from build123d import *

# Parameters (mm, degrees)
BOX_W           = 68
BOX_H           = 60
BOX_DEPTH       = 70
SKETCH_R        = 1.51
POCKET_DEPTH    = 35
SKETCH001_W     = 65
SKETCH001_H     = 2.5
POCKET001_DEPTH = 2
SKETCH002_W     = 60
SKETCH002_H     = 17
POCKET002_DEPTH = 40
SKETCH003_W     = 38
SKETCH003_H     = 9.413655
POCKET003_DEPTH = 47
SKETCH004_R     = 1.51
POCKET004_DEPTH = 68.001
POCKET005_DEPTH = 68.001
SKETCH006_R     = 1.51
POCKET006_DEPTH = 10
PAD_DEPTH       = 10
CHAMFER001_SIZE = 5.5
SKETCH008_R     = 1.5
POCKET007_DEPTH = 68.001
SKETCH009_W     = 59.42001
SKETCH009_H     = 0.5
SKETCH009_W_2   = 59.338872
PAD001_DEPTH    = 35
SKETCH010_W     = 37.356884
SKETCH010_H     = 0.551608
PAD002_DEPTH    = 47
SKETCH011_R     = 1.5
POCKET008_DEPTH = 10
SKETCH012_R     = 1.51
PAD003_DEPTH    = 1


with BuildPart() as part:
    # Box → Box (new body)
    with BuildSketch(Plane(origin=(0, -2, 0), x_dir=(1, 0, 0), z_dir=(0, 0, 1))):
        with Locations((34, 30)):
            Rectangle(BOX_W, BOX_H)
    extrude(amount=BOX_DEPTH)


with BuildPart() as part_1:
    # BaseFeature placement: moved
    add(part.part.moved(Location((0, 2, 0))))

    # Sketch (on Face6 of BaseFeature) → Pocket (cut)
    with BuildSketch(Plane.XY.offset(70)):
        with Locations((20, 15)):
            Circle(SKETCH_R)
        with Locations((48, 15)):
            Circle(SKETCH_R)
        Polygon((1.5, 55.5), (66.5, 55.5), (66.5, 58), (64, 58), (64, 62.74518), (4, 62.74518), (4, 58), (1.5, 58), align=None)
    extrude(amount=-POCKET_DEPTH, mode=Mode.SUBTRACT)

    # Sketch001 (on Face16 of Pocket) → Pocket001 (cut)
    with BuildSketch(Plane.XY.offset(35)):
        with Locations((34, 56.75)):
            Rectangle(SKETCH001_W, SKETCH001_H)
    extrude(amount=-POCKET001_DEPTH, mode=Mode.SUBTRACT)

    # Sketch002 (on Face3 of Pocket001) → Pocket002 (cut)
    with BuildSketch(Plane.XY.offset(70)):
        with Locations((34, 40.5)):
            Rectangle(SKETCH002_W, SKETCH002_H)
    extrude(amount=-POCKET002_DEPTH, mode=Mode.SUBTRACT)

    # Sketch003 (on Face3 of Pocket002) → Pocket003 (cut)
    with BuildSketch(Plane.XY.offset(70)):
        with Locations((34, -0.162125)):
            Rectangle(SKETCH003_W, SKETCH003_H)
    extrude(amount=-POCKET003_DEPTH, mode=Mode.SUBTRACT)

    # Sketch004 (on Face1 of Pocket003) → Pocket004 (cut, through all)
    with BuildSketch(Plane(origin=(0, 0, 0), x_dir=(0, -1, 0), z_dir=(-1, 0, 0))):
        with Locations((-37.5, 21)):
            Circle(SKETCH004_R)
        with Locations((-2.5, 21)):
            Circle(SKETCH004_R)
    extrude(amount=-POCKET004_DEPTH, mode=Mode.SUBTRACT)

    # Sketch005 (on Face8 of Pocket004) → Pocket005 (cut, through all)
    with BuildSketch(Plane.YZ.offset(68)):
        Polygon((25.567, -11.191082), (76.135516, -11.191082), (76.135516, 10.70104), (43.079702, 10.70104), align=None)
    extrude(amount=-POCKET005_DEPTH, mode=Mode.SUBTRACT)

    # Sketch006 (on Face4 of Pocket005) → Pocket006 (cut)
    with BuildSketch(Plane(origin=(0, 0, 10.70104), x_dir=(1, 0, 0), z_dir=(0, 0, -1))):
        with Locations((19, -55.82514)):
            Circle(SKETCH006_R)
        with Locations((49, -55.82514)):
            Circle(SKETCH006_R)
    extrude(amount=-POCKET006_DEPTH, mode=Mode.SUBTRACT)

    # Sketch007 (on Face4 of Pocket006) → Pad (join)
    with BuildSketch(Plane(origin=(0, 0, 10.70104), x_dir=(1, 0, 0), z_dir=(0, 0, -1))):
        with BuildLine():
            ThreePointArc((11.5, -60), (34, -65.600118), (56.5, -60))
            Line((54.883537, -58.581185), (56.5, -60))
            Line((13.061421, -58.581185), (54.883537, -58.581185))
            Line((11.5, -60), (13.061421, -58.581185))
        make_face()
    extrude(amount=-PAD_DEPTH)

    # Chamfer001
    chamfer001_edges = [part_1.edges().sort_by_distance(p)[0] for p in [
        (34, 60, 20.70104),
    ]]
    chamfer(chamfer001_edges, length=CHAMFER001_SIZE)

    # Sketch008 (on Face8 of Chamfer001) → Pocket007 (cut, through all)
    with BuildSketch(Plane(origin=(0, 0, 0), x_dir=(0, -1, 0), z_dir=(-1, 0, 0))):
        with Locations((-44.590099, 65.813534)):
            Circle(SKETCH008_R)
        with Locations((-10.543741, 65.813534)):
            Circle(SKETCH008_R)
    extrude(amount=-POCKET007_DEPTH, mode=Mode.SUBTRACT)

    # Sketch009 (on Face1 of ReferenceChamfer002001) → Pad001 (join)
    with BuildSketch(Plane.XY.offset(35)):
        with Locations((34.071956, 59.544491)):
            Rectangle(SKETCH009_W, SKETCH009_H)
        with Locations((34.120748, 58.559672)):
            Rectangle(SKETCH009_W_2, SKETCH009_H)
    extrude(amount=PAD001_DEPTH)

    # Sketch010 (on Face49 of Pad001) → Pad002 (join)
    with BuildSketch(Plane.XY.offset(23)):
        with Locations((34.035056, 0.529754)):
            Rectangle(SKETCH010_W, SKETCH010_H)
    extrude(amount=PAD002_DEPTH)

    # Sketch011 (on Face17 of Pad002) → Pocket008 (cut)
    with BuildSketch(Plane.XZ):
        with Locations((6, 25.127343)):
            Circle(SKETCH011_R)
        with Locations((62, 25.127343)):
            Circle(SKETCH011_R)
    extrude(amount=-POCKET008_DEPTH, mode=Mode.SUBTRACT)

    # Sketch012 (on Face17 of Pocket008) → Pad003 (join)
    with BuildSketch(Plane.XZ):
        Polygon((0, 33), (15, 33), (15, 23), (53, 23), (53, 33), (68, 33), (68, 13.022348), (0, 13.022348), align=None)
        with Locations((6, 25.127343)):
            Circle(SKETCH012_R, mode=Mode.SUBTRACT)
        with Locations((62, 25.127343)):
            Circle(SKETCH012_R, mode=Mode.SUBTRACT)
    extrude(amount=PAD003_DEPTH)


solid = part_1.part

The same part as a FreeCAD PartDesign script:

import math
import FreeCAD as App
import Part
import Sketcher


def edges_at(feature, points):
    """Names of the edges that pass closest to the given points."""
    edges = feature.Shape.Edges
    near = lambda p: min(range(len(edges)), key=lambda i: edges[i].distToShape(Part.Vertex(*p))[0])
    return sorted({f"Edge{near(p) + 1}" for p in points})


def add_polygon(sketch, points):
    """Adds a closed chain of lines whose ends are joined by coincident constraints."""
    first, n = sketch.GeometryCount, len(points)
    for a, b in zip(points, points[1:] + points[:1]):
        sketch.addGeometry(Part.LineSegment(App.Vector(*a, 0), App.Vector(*b, 0)), False)
    for i in range(n):
        sketch.addConstraint(Sketcher.Constraint("Coincident", first + i, 2, first + (i + 1) % n, 1))

doc = App.newDocument("Part")
body = doc.addObject("PartDesign::Body", "Body")

# Sketch on XY plane
sketch1 = body.newObject("Sketcher::SketchObject", "Sketch")
sketch1.AttachmentSupport = (doc.getObject("XY_Plane"), [""])
sketch1.MapMode = "FlatFace"
add_polygon(sketch1, [(0, 58), (0, -2), (68, -2), (68, 58)])  # lines 0-3
sketch1.addConstraint(Sketcher.Constraint("Vertical", 0))
sketch1.addConstraint(Sketcher.Constraint("Horizontal", 1))
sketch1.addConstraint(Sketcher.Constraint("Vertical", 2))
sketch1.addConstraint(Sketcher.Constraint("Horizontal", 3))
sketch1.addConstraint(Sketcher.Constraint("PointOnObject", 0, 2, -2))
sketch1.addConstraint(Sketcher.Constraint("DistanceX", 1, 1, 1, 2, 68.0))
sketch1.addConstraint(Sketcher.Constraint("DistanceY", 0, 2, 0, 1, 60.0))
sketch1.addConstraint(Sketcher.Constraint("DistanceY", 0, 2, -1, 1, 2.0))
pad1 = body.newObject("PartDesign::Pad", "Pad")
pad1.Profile = sketch1
pad1.Length = 70
body2 = doc.addObject("PartDesign::Body", "Body001")
doc.recompute()

body.Placement = App.Placement(App.Vector(0, 2, 0), App.Rotation(App.Vector(0, 0, 1), 0))
boolean = body2.newObject("PartDesign::Boolean", "Boolean")
boolean.Type = "Fuse"
boolean.addObjects([body])

# Sketch on XY plane
sketch2 = body2.newObject("Sketcher::SketchObject", "Sketch001")
sketch2.AttachmentSupport = (doc.getObject("XY_Plane001"), [""])
sketch2.MapMode = "FlatFace"
sketch2.AttachmentOffset = App.Placement(App.Vector(0, 0, 70), App.Rotation())
sketch2.addGeometry(Part.Circle(App.Vector(20, 15, 0), App.Vector(0, 0, 1), 1.5), False)  # 0
sketch2.addGeometry(Part.Circle(App.Vector(48, 15, 0), App.Vector(0, 0, 1), 1.5), False)  # 1
add_polygon(sketch2, [(1.5, 55.5), (66.5, 55.5), (66.5, 58), (64, 58), (64, 62.7), (4, 62.7), (4, 58), (1.5, 58)])  # lines 2-9
sketch2.addConstraint(Sketcher.Constraint("Horizontal", 2))
sketch2.addConstraint(Sketcher.Constraint("Vertical", 3))
sketch2.addConstraint(Sketcher.Constraint("Horizontal", 4))
sketch2.addConstraint(Sketcher.Constraint("Vertical", 5))
sketch2.addConstraint(Sketcher.Constraint("Horizontal", 6))
sketch2.addConstraint(Sketcher.Constraint("Vertical", 7))
sketch2.addConstraint(Sketcher.Constraint("Horizontal", 8))
sketch2.addConstraint(Sketcher.Constraint("Vertical", 9))
sketch2.addConstraint(Sketcher.Constraint("Equal", 0, 1))
sketch2.addConstraint(Sketcher.Constraint("Horizontal", 0, 3, 1, 3))
sketch2.addConstraint(Sketcher.Constraint("Horizontal", 4, 2, 7, 2))
sketch2.addConstraint(Sketcher.Constraint("Equal", 4, 8))
sketch2.addConstraint(Sketcher.Constraint("Equal", 8, 3))
sketch2.addConstraint(Sketcher.Constraint("Diameter", 0, 3.02))
sketch2.addConstraint(Sketcher.Constraint("DistanceX", 2, 1, 2, 2, 65.0))
sketch2.addConstraint(Sketcher.Constraint("DistanceX", 6, 2, 6, 1, 60.0))
sketch2.addConstraint(Sketcher.Constraint("DistanceX", -1, 1, 0, 3, 20.0))
sketch2.addConstraint(Sketcher.Constraint("DistanceY", -1, 1, 0, 3, 15.0))
sketch2.addConstraint(Sketcher.Constraint("DistanceX", -1, 1, 1, 3, 48.0))
sketch2.addConstraint(Sketcher.Constraint("DistanceY", -1, 1, 3, 2, 58.0))
sketch2.addConstraint(Sketcher.Constraint("DistanceX", -1, 1, 4, 2, 64.0))
sketch2.addConstraint(Sketcher.Constraint("DistanceY", 5, 1, 5, 2, 4.74518))
pocket1 = body2.newObject("PartDesign::Pocket", "Pocket")
pocket1.Profile = sketch2
pocket1.Length = 35

# Sketch on XY plane
sketch3 = body2.newObject("Sketcher::SketchObject", "Sketch002")
sketch3.AttachmentSupport = (doc.getObject("XY_Plane001"), [""])
sketch3.MapMode = "FlatFace"
sketch3.AttachmentOffset = App.Placement(App.Vector(0, 0, 35), App.Rotation())
add_polygon(sketch3, [(1.5, 58), (1.5, 55.5), (66.5, 55.5), (66.5, 58)])  # lines 0-3
sketch3.addConstraint(Sketcher.Constraint("Vertical", 0))
sketch3.addConstraint(Sketcher.Constraint("Horizontal", 1))
sketch3.addConstraint(Sketcher.Constraint("Vertical", 2))
sketch3.addConstraint(Sketcher.Constraint("Horizontal", 3))
sketch3.addConstraint(Sketcher.Constraint("DistanceX", 1, 1, 1, 2, 65.0))
sketch3.addConstraint(Sketcher.Constraint("DistanceY", 0, 2, 0, 1, 2.5))
sketch3.addConstraint(Sketcher.Constraint("DistanceY", -1, 1, 2, 2, 58.0))
sketch3.addConstraint(Sketcher.Constraint("DistanceX", -1, 1, 0, 2, 1.5))
pocket2 = body2.newObject("PartDesign::Pocket", "Pocket001")
pocket2.Profile = sketch3
pocket2.Length = 2

# Sketch on XY plane
sketch4 = body2.newObject("Sketcher::SketchObject", "Sketch003")
sketch4.AttachmentSupport = (doc.getObject("XY_Plane001"), [""])
sketch4.MapMode = "FlatFace"
sketch4.AttachmentOffset = App.Placement(App.Vector(0, 0, 70), App.Rotation())
add_polygon(sketch4, [(4, 49), (4, 32), (64, 32), (64, 49)])  # lines 0-3
sketch4.addConstraint(Sketcher.Constraint("Vertical", 0))
sketch4.addConstraint(Sketcher.Constraint("Horizontal", 1))
sketch4.addConstraint(Sketcher.Constraint("Vertical", 2))
sketch4.addConstraint(Sketcher.Constraint("Horizontal", 3))
sketch4.addConstraint(Sketcher.Constraint("DistanceX", 1, 1, 1, 2, 60.0))
sketch4.addConstraint(Sketcher.Constraint("DistanceY", 0, 2, 0, 1, 17.0))
sketch4.addConstraint(Sketcher.Constraint("DistanceX", -1, 1, 0, 2, 4.0))
sketch4.addConstraint(Sketcher.Constraint("DistanceY", -1, 1, 0, 2, 32.0))
pocket3 = body2.newObject("PartDesign::Pocket", "Pocket002")
pocket3.Profile = sketch4
pocket3.Length = 40

# Sketch on XY plane
sketch5 = body2.newObject("Sketcher::SketchObject", "Sketch004")
sketch5.AttachmentSupport = (doc.getObject("XY_Plane001"), [""])
sketch5.MapMode = "FlatFace"
sketch5.AttachmentOffset = App.Placement(App.Vector(0, 0, 70), App.Rotation())
add_polygon(sketch5, [(15, 5), (15, -5), (53, -5), (53, 5)])  # lines 0-3
sketch5.addConstraint(Sketcher.Constraint("Vertical", 0))
sketch5.addConstraint(Sketcher.Constraint("Horizontal", 1))
sketch5.addConstraint(Sketcher.Constraint("Vertical", 2))
sketch5.addConstraint(Sketcher.Constraint("Horizontal", 3))
sketch5.addConstraint(Sketcher.Constraint("DistanceX", 1, 1, 1, 2, 38.0))
sketch5.addConstraint(Sketcher.Constraint("DistanceX", -1, 1, 0, 2, 15.0))
sketch5.addConstraint(Sketcher.Constraint("DistanceY", 0, 2, 0, 1, 9.413655))
sketch5.addConstraint(Sketcher.Constraint("DistanceY", 0, 2, -1, 1, 4.868952))
pocket4 = body2.newObject("PartDesign::Pocket", "Pocket003")
pocket4.Profile = sketch5
pocket4.Length = 47

# Sketch on YZ plane
sketch6 = body2.newObject("Sketcher::SketchObject", "Sketch005")
sketch6.AttachmentSupport = (doc.getObject("YZ_Plane001"), [""])
sketch6.MapMode = "FlatFace"
sketch6.addGeometry(Part.Circle(App.Vector(37.5, 21, 0), App.Vector(0, 0, 1), 1.5), False)
sketch6.addGeometry(Part.Circle(App.Vector(2.5, 21, 0), App.Vector(0, 0, 1), 1.5), False)
sketch6.addConstraint(Sketcher.Constraint("Equal", 0, 1))
sketch6.addConstraint(Sketcher.Constraint("Horizontal", 0, 3, 1, 3))
sketch6.addConstraint(Sketcher.Constraint("Diameter", 0, 3.02))
sketch6.addConstraint(Sketcher.Constraint("DistanceY", -1, 1, 0, 3, 21.0))
sketch6.addConstraint(Sketcher.Constraint("DistanceX", 1, 3, 0, 3, 35.0))
sketch6.addConstraint(Sketcher.Constraint("DistanceX", -1, 1, 0, 3, 37.5))
pocket5 = body2.newObject("PartDesign::Pocket", "Pocket004")
pocket5.Profile = sketch6
pocket5.Type = "ThroughAll"
pocket5.Reversed = True

# Sketch on YZ plane
sketch7 = body2.newObject("Sketcher::SketchObject", "Sketch006")
sketch7.AttachmentSupport = (doc.getObject("YZ_Plane001"), [""])
sketch7.MapMode = "FlatFace"
sketch7.AttachmentOffset = App.Placement(App.Vector(0, 0, 68), App.Rotation())
add_polygon(sketch7, [(26, -11), (76, -11), (76, 11), (43, 11)])  # lines 0-3
sketch7.addConstraint(Sketcher.Constraint("Horizontal", 0))
sketch7.addConstraint(Sketcher.Constraint("Vertical", 1))
sketch7.addConstraint(Sketcher.Constraint("Horizontal", 2))
sketch7.addConstraint(Sketcher.Constraint("DistanceX", -1, 1, 3, 2, 25.567))
sketch7.addConstraint(Sketcher.Constraint("DistanceX", -1, 1, 2, 2, 43.079702))
sketch7.addConstraint(Sketcher.Constraint("DistanceX", 0, 1, 0, 2, 50.568516))
sketch7.addConstraint(Sketcher.Constraint("DistanceY", 1, 1, 1, 2, 21.892122))
sketch7.addConstraint(Sketcher.Constraint("DistanceY", -1, 1, 1, 2, 10.70104))
pocket6 = body2.newObject("PartDesign::Pocket", "Pocket005")
pocket6.Profile = sketch7
pocket6.Type = "ThroughAll"

# Sketch on XY plane
sketch8 = body2.newObject("Sketcher::SketchObject", "Sketch007")
sketch8.AttachmentSupport = (doc.getObject("XY_Plane001"), [""])
sketch8.MapMode = "FlatFace"
sketch8.AttachmentOffset = App.Placement(App.Vector(0, 0, 10.70104), App.Rotation())
sketch8.addGeometry(Part.Circle(App.Vector(19, 55.8, 0), App.Vector(0, 0, 1), 1.5), False)
sketch8.addGeometry(Part.Circle(App.Vector(49, 55.8, 0), App.Vector(0, 0, 1), 1.5), False)
sketch8.addConstraint(Sketcher.Constraint("Equal", 0, 1))
sketch8.addConstraint(Sketcher.Constraint("Horizontal", 0, 3, 1, 3))
sketch8.addConstraint(Sketcher.Constraint("Diameter", 0, 3.02))
sketch8.addConstraint(Sketcher.Constraint("DistanceX", -1, 1, 0, 3, 19.0))
sketch8.addConstraint(Sketcher.Constraint("DistanceX", -1, 1, 1, 3, 49.0))
sketch8.addConstraint(Sketcher.Constraint("DistanceY", -1, 1, 0, 3, 55.82514))
pocket7 = body2.newObject("PartDesign::Pocket", "Pocket006")
pocket7.Profile = sketch8
pocket7.Length = 10
pocket7.Reversed = True

# Sketch on XY plane
sketch9 = body2.newObject("Sketcher::SketchObject", "Sketch008")
sketch9.AttachmentSupport = (doc.getObject("XY_Plane001"), [""])
sketch9.MapMode = "FlatFace"
sketch9.AttachmentOffset = App.Placement(App.Vector(0, 0, 10.70104), App.Rotation())
sketch9.addGeometry(Part.ArcOfCircle(Part.Circle(App.Vector(34, 17.6, 0), App.Vector(0, 0, 1), 48), math.radians(62), math.radians(118)), False)
sketch9.addGeometry(Part.LineSegment(App.Vector(56.5, 60, 0), App.Vector(54.9, 58.6, 0)), False)
sketch9.addGeometry(Part.LineSegment(App.Vector(54.9, 58.6, 0), App.Vector(13.1, 58.6, 0)), False)
sketch9.addGeometry(Part.LineSegment(App.Vector(13.1, 58.6, 0), App.Vector(11.5, 60, 0)), False)
sketch9.addConstraint(Sketcher.Constraint("Coincident", 0, 1, 1, 1))
sketch9.addConstraint(Sketcher.Constraint("Coincident", 1, 2, 2, 1))
sketch9.addConstraint(Sketcher.Constraint("Coincident", 2, 2, 3, 1))
sketch9.addConstraint(Sketcher.Constraint("Coincident", 3, 2, 0, 2))
sketch9.addConstraint(Sketcher.Constraint("Horizontal", 2))
sketch9.addConstraint(Sketcher.Constraint("Horizontal", 0, 1, 3, 2))
sketch9.addConstraint(Sketcher.Constraint("Radius", 0, 47.999999))
sketch9.addConstraint(Sketcher.Constraint("DistanceX", -1, 1, 0, 3, 34.0))
sketch9.addConstraint(Sketcher.Constraint("DistanceY", -1, 1, 0, 1, 60.0))
sketch9.addConstraint(Sketcher.Constraint("DistanceX", 3, 2, 0, 1, 45.0))
sketch9.addConstraint(Sketcher.Constraint("Distance", 1, 2.150811))
sketch9.addConstraint(Sketcher.Constraint("DistanceX", 2, 2, 2, 1, 41.822116))
sketch9.addConstraint(Sketcher.Constraint("DistanceX", -1, 1, 2, 2, 13.061421))
pad2 = body2.newObject("PartDesign::Pad", "Pad001")
pad2.Profile = sketch9
pad2.Length = 10
doc.recompute()

chamfer = body2.newObject("PartDesign::Chamfer", "Chamfer")
chamfer.Base = (pad2, edges_at(pad2, [(34, 60, 20.701)]))
chamfer.Size = 5.5

# Sketch on YZ plane
sketch10 = body2.newObject("Sketcher::SketchObject", "Sketch009")
sketch10.AttachmentSupport = (doc.getObject("YZ_Plane001"), [""])
sketch10.MapMode = "FlatFace"
sketch10.addGeometry(Part.Circle(App.Vector(44.6, 65.8, 0), App.Vector(0, 0, 1), 1.5), False)
sketch10.addGeometry(Part.Circle(App.Vector(10.5, 65.8, 0), App.Vector(0, 0, 1), 1.5), False)
sketch10.addConstraint(Sketcher.Constraint("Equal", 0, 1))
sketch10.addConstraint(Sketcher.Constraint("Horizontal", 0, 3, 1, 3))
sketch10.addConstraint(Sketcher.Constraint("Diameter", 0, 3.0))
sketch10.addConstraint(Sketcher.Constraint("DistanceX", -1, 1, 0, 3, 44.590099))
sketch10.addConstraint(Sketcher.Constraint("DistanceX", -1, 1, 1, 3, 10.543741))
sketch10.addConstraint(Sketcher.Constraint("DistanceY", -1, 1, 0, 3, 65.813534))
pocket8 = body2.newObject("PartDesign::Pocket", "Pocket007")
pocket8.Profile = sketch10
pocket8.Type = "ThroughAll"
pocket8.Reversed = True

# Sketch on XY plane
sketch11 = body2.newObject("Sketcher::SketchObject", "Sketch010")
sketch11.AttachmentSupport = (doc.getObject("XY_Plane001"), [""])
sketch11.MapMode = "FlatFace"
sketch11.AttachmentOffset = App.Placement(App.Vector(0, 0, 35), App.Rotation())
add_polygon(sketch11, [(4.4, 59.8), (4.4, 59.3), (63.8, 59.3), (63.8, 59.8)])  # lines 0-3
add_polygon(sketch11, [(4.5, 58.8), (4.5, 58.3), (63.8, 58.3), (63.8, 58.8)])  # lines 4-7
sketch11.addConstraint(Sketcher.Constraint("Vertical", 0))
sketch11.addConstraint(Sketcher.Constraint("Horizontal", 1))
sketch11.addConstraint(Sketcher.Constraint("Vertical", 2))
sketch11.addConstraint(Sketcher.Constraint("Horizontal", 3))
sketch11.addConstraint(Sketcher.Constraint("Vertical", 4))
sketch11.addConstraint(Sketcher.Constraint("Horizontal", 5))
sketch11.addConstraint(Sketcher.Constraint("Vertical", 6))
sketch11.addConstraint(Sketcher.Constraint("Horizontal", 7))
sketch11.addConstraint(Sketcher.Constraint("Equal", 2, 4))
sketch11.addConstraint(Sketcher.Constraint("DistanceY", 0, 2, 0, 1, 0.5))
sketch11.addConstraint(Sketcher.Constraint("DistanceX", 1, 1, 1, 2, 59.42001))
sketch11.addConstraint(Sketcher.Constraint("DistanceX", 5, 1, 5, 2, 59.338872))
sketch11.addConstraint(Sketcher.Constraint("DistanceX", -1, 1, 0, 2, 4.361951))
sketch11.addConstraint(Sketcher.Constraint("DistanceY", -1, 1, 0, 2, 59.294491))
sketch11.addConstraint(Sketcher.Constraint("DistanceX", -1, 1, 4, 2, 4.451312))
sketch11.addConstraint(Sketcher.Constraint("DistanceY", 4, 2, 0, 2, 0.984819))
pad3 = body2.newObject("PartDesign::Pad", "Pad002")
pad3.Profile = sketch11
pad3.Length = 35

# Sketch on XY plane
sketch12 = body2.newObject("Sketcher::SketchObject", "Sketch011")
sketch12.AttachmentSupport = (doc.getObject("XY_Plane001"), [""])
sketch12.MapMode = "FlatFace"
sketch12.AttachmentOffset = App.Placement(App.Vector(0, 0, 23), App.Rotation())
add_polygon(sketch12, [(15.4, 0.8), (15.4, 0.3), (52.7, 0.3), (52.7, 0.8)])  # lines 0-3
sketch12.addConstraint(Sketcher.Constraint("Vertical", 0))
sketch12.addConstraint(Sketcher.Constraint("Horizontal", 1))
sketch12.addConstraint(Sketcher.Constraint("Vertical", 2))
sketch12.addConstraint(Sketcher.Constraint("Horizontal", 3))
sketch12.addConstraint(Sketcher.Constraint("DistanceX", 1, 1, 1, 2, 37.356884))
sketch12.addConstraint(Sketcher.Constraint("DistanceY", 0, 2, 0, 1, 0.551608))
sketch12.addConstraint(Sketcher.Constraint("DistanceY", -1, 1, 0, 2, 0.25395))
sketch12.addConstraint(Sketcher.Constraint("DistanceX", -1, 1, 0, 2, 15.356614))
pad4 = body2.newObject("PartDesign::Pad", "Pad003")
pad4.Profile = sketch12
pad4.Length = 47

# Sketch on XZ plane
sketch13 = body2.newObject("Sketcher::SketchObject", "Sketch012")
sketch13.AttachmentSupport = (doc.getObject("XZ_Plane001"), [""])
sketch13.MapMode = "FlatFace"
sketch13.addGeometry(Part.Circle(App.Vector(6, 25.1, 0), App.Vector(0, 0, 1), 1.5), False)
sketch13.addGeometry(Part.Circle(App.Vector(62, 25.1, 0), App.Vector(0, 0, 1), 1.5), False)
sketch13.addConstraint(Sketcher.Constraint("Equal", 0, 1))
sketch13.addConstraint(Sketcher.Constraint("Horizontal", 0, 3, 1, 3))
sketch13.addConstraint(Sketcher.Constraint("Diameter", 0, 3.0))
sketch13.addConstraint(Sketcher.Constraint("DistanceX", -1, 1, 0, 3, 6.0))
sketch13.addConstraint(Sketcher.Constraint("DistanceX", -1, 1, 1, 3, 62.0))
sketch13.addConstraint(Sketcher.Constraint("DistanceY", -1, 1, 0, 3, 25.127343))
pocket9 = body2.newObject("PartDesign::Pocket", "Pocket008")
pocket9.Profile = sketch13
pocket9.Length = 10

# Sketch on XZ plane
sketch14 = body2.newObject("Sketcher::SketchObject", "Sketch013")
sketch14.AttachmentSupport = (doc.getObject("XZ_Plane001"), [""])
sketch14.MapMode = "FlatFace"
add_polygon(sketch14, [(15, 33), (0, 33), (0, 13), (68, 13), (68, 33), (53, 33), (53, 23), (15, 23)])  # lines 0-7
sketch14.addGeometry(Part.Circle(App.Vector(62, 25.1, 0), App.Vector(0, 0, 1), 1.5), False)  # 8
sketch14.addGeometry(Part.Circle(App.Vector(6, 25.1, 0), App.Vector(0, 0, 1), 1.5), False)  # 9
sketch14.addConstraint(Sketcher.Constraint("Horizontal", 0))
sketch14.addConstraint(Sketcher.Constraint("Vertical", 1))
sketch14.addConstraint(Sketcher.Constraint("Horizontal", 2))
sketch14.addConstraint(Sketcher.Constraint("Vertical", 3))
sketch14.addConstraint(Sketcher.Constraint("Horizontal", 4))
sketch14.addConstraint(Sketcher.Constraint("Vertical", 5))
sketch14.addConstraint(Sketcher.Constraint("Horizontal", 6))
sketch14.addConstraint(Sketcher.Constraint("Vertical", 7))
sketch14.addConstraint(Sketcher.Constraint("Equal", 8, 9))
sketch14.addConstraint(Sketcher.Constraint("PointOnObject", 0, 2, -2))
sketch14.addConstraint(Sketcher.Constraint("Horizontal", 8, 3, 9, 3))
sketch14.addConstraint(Sketcher.Constraint("Horizontal", 0, 2, 3, 2))
sketch14.addConstraint(Sketcher.Constraint("Equal", 0, 4))
sketch14.addConstraint(Sketcher.Constraint("Diameter", 8, 3.02))
sketch14.addConstraint(Sketcher.Constraint("DistanceX", 0, 2, 0, 1, 15.0))
sketch14.addConstraint(Sketcher.Constraint("DistanceX", 2, 1, 2, 2, 68.0))
sketch14.addConstraint(Sketcher.Constraint("DistanceY", 5, 2, 5, 1, 10.0))
sketch14.addConstraint(Sketcher.Constraint("DistanceX", -1, 1, 8, 3, 62.0))
sketch14.addConstraint(Sketcher.Constraint("DistanceX", -1, 1, 9, 3, 6.0))
sketch14.addConstraint(Sketcher.Constraint("DistanceY", -1, 1, 0, 2, 33.0))
sketch14.addConstraint(Sketcher.Constraint("DistanceY", 1, 2, 1, 1, 19.977652))
sketch14.addConstraint(Sketcher.Constraint("DistanceY", -1, 1, 8, 3, 25.127343))
pad5 = body2.newObject("PartDesign::Pad", "Pad004")
pad5.Profile = sketch14
pad5.Length = 1

doc.recompute()
